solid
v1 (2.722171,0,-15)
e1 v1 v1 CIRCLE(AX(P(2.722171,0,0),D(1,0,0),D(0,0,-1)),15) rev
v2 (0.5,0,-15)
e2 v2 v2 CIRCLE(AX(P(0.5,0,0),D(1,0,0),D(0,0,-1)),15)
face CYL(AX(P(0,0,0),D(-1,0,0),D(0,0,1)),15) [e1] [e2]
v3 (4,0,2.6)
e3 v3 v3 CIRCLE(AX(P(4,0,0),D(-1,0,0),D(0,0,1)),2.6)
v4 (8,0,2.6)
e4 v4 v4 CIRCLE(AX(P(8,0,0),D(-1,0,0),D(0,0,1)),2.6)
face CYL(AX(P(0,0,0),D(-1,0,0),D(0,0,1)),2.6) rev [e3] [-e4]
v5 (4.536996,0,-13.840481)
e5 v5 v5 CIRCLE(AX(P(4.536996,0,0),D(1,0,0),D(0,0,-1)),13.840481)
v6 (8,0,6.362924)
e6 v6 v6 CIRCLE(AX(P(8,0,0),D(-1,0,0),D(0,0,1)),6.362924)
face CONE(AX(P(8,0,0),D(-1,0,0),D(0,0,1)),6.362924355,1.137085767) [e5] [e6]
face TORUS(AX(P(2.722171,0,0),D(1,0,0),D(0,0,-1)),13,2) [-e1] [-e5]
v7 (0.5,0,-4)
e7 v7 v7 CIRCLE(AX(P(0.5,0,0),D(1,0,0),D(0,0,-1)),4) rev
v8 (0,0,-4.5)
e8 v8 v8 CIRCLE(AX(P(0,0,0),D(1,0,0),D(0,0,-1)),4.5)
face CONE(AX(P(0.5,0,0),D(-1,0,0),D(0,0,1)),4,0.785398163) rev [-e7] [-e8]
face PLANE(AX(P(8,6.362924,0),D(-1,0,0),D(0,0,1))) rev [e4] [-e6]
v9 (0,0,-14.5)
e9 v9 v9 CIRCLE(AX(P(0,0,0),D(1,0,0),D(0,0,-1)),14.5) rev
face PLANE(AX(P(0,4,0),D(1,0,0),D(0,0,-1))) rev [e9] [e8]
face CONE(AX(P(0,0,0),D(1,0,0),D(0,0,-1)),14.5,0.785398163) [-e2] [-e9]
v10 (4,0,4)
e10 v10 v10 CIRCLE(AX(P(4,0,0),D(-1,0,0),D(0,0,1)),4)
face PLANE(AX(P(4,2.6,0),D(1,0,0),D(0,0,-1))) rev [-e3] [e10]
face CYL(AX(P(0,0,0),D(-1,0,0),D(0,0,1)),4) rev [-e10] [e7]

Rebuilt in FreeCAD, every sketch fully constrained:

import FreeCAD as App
import Part
import Sketcher

V = App.Vector


def edges_at(feature, points):
    """Names of the edges that pass closest to the given points."""
    edges = feature.Shape.Edges
    near = lambda p: min(range(len(edges)), key=lambda i: edges[i].distToShape(Part.Vertex(*p))[0])
    return sorted({f"Edge{near(p) + 1}" for p in points})


def add_polygon(sketch, points):
    """Adds a closed chain of lines whose ends are joined by coincident constraints."""
    first, n = sketch.GeometryCount, len(points)
    for a, b in zip(points, points[1:] + points[:1]):
        sketch.addGeometry(Part.LineSegment(App.Vector(*a, 0), App.Vector(*b, 0)), False)
    for i in range(n):
        sketch.addConstraint(Sketcher.Constraint("Coincident", first + i, 2, first + (i + 1) % n, 1))

doc = App.newDocument("Part")
body = doc.addObject("PartDesign::Body", "Body")

# Sketch on XY plane
sketch1 = doc.addObject("Sketcher::SketchObject", "Sketch")
body.addObject(sketch1)
sketch1.AttachmentSupport = (doc.XY_Plane, [""])
sketch1.MapMode = "FlatFace"
add_polygon(sketch1, [(0, 15), (0, 4), (4, 4), (4, 2.6), (8, 2.6), (8, 6.4), (4, 15)])  # lines 0-6
sketch1.addConstraint([
    Sketcher.Constraint("Vertical", 0),
    Sketcher.Constraint("Horizontal", 1),
    Sketcher.Constraint("Vertical", 2),
    Sketcher.Constraint("Horizontal", 3),
    Sketcher.Constraint("Vertical", 4),
    Sketcher.Constraint("Horizontal", 6),
    Sketcher.Constraint("PointOnObject", 0, 2, -2),
    Sketcher.Constraint("Vertical", 2, 2, 5, 2),
    Sketcher.Constraint("Equal", 1, 3),
    Sketcher.Constraint("DistanceX", 1, 1, 1, 2, 4.0),
    Sketcher.Constraint("DistanceY", 0, 2, 0, 1, 11.0),
    Sketcher.Constraint("DistanceY", 2, 2, 2, 1, 1.4),
    Sketcher.Constraint("DistanceY", -1, 1, 0, 2, 4.0),
    Sketcher.Constraint("DistanceY", 4, 1, 4, 2, 3.762924),
])
revolution = doc.addObject("PartDesign::Revolution", "Revolution")
body.addObject(revolution)
revolution.Profile = sketch1
revolution.ReferenceAxis = (sketch1, ["H_Axis"])
revolution.Angle = 360
doc.recompute()

fillet = doc.addObject("PartDesign::Fillet", "Fillet")
body.addObject(fillet)
fillet.Base = (revolution, edges_at(revolution, [(4, 0, -15)]))
fillet.Radius = 2
doc.recompute()

chamfer = doc.addObject("PartDesign::Chamfer", "Chamfer")
body.addObject(chamfer)
chamfer.Base = (fillet, edges_at(fillet, [(0, 0, -15), (0, 0, -4)]))
chamfer.Size = 0.5

doc.recompute()
